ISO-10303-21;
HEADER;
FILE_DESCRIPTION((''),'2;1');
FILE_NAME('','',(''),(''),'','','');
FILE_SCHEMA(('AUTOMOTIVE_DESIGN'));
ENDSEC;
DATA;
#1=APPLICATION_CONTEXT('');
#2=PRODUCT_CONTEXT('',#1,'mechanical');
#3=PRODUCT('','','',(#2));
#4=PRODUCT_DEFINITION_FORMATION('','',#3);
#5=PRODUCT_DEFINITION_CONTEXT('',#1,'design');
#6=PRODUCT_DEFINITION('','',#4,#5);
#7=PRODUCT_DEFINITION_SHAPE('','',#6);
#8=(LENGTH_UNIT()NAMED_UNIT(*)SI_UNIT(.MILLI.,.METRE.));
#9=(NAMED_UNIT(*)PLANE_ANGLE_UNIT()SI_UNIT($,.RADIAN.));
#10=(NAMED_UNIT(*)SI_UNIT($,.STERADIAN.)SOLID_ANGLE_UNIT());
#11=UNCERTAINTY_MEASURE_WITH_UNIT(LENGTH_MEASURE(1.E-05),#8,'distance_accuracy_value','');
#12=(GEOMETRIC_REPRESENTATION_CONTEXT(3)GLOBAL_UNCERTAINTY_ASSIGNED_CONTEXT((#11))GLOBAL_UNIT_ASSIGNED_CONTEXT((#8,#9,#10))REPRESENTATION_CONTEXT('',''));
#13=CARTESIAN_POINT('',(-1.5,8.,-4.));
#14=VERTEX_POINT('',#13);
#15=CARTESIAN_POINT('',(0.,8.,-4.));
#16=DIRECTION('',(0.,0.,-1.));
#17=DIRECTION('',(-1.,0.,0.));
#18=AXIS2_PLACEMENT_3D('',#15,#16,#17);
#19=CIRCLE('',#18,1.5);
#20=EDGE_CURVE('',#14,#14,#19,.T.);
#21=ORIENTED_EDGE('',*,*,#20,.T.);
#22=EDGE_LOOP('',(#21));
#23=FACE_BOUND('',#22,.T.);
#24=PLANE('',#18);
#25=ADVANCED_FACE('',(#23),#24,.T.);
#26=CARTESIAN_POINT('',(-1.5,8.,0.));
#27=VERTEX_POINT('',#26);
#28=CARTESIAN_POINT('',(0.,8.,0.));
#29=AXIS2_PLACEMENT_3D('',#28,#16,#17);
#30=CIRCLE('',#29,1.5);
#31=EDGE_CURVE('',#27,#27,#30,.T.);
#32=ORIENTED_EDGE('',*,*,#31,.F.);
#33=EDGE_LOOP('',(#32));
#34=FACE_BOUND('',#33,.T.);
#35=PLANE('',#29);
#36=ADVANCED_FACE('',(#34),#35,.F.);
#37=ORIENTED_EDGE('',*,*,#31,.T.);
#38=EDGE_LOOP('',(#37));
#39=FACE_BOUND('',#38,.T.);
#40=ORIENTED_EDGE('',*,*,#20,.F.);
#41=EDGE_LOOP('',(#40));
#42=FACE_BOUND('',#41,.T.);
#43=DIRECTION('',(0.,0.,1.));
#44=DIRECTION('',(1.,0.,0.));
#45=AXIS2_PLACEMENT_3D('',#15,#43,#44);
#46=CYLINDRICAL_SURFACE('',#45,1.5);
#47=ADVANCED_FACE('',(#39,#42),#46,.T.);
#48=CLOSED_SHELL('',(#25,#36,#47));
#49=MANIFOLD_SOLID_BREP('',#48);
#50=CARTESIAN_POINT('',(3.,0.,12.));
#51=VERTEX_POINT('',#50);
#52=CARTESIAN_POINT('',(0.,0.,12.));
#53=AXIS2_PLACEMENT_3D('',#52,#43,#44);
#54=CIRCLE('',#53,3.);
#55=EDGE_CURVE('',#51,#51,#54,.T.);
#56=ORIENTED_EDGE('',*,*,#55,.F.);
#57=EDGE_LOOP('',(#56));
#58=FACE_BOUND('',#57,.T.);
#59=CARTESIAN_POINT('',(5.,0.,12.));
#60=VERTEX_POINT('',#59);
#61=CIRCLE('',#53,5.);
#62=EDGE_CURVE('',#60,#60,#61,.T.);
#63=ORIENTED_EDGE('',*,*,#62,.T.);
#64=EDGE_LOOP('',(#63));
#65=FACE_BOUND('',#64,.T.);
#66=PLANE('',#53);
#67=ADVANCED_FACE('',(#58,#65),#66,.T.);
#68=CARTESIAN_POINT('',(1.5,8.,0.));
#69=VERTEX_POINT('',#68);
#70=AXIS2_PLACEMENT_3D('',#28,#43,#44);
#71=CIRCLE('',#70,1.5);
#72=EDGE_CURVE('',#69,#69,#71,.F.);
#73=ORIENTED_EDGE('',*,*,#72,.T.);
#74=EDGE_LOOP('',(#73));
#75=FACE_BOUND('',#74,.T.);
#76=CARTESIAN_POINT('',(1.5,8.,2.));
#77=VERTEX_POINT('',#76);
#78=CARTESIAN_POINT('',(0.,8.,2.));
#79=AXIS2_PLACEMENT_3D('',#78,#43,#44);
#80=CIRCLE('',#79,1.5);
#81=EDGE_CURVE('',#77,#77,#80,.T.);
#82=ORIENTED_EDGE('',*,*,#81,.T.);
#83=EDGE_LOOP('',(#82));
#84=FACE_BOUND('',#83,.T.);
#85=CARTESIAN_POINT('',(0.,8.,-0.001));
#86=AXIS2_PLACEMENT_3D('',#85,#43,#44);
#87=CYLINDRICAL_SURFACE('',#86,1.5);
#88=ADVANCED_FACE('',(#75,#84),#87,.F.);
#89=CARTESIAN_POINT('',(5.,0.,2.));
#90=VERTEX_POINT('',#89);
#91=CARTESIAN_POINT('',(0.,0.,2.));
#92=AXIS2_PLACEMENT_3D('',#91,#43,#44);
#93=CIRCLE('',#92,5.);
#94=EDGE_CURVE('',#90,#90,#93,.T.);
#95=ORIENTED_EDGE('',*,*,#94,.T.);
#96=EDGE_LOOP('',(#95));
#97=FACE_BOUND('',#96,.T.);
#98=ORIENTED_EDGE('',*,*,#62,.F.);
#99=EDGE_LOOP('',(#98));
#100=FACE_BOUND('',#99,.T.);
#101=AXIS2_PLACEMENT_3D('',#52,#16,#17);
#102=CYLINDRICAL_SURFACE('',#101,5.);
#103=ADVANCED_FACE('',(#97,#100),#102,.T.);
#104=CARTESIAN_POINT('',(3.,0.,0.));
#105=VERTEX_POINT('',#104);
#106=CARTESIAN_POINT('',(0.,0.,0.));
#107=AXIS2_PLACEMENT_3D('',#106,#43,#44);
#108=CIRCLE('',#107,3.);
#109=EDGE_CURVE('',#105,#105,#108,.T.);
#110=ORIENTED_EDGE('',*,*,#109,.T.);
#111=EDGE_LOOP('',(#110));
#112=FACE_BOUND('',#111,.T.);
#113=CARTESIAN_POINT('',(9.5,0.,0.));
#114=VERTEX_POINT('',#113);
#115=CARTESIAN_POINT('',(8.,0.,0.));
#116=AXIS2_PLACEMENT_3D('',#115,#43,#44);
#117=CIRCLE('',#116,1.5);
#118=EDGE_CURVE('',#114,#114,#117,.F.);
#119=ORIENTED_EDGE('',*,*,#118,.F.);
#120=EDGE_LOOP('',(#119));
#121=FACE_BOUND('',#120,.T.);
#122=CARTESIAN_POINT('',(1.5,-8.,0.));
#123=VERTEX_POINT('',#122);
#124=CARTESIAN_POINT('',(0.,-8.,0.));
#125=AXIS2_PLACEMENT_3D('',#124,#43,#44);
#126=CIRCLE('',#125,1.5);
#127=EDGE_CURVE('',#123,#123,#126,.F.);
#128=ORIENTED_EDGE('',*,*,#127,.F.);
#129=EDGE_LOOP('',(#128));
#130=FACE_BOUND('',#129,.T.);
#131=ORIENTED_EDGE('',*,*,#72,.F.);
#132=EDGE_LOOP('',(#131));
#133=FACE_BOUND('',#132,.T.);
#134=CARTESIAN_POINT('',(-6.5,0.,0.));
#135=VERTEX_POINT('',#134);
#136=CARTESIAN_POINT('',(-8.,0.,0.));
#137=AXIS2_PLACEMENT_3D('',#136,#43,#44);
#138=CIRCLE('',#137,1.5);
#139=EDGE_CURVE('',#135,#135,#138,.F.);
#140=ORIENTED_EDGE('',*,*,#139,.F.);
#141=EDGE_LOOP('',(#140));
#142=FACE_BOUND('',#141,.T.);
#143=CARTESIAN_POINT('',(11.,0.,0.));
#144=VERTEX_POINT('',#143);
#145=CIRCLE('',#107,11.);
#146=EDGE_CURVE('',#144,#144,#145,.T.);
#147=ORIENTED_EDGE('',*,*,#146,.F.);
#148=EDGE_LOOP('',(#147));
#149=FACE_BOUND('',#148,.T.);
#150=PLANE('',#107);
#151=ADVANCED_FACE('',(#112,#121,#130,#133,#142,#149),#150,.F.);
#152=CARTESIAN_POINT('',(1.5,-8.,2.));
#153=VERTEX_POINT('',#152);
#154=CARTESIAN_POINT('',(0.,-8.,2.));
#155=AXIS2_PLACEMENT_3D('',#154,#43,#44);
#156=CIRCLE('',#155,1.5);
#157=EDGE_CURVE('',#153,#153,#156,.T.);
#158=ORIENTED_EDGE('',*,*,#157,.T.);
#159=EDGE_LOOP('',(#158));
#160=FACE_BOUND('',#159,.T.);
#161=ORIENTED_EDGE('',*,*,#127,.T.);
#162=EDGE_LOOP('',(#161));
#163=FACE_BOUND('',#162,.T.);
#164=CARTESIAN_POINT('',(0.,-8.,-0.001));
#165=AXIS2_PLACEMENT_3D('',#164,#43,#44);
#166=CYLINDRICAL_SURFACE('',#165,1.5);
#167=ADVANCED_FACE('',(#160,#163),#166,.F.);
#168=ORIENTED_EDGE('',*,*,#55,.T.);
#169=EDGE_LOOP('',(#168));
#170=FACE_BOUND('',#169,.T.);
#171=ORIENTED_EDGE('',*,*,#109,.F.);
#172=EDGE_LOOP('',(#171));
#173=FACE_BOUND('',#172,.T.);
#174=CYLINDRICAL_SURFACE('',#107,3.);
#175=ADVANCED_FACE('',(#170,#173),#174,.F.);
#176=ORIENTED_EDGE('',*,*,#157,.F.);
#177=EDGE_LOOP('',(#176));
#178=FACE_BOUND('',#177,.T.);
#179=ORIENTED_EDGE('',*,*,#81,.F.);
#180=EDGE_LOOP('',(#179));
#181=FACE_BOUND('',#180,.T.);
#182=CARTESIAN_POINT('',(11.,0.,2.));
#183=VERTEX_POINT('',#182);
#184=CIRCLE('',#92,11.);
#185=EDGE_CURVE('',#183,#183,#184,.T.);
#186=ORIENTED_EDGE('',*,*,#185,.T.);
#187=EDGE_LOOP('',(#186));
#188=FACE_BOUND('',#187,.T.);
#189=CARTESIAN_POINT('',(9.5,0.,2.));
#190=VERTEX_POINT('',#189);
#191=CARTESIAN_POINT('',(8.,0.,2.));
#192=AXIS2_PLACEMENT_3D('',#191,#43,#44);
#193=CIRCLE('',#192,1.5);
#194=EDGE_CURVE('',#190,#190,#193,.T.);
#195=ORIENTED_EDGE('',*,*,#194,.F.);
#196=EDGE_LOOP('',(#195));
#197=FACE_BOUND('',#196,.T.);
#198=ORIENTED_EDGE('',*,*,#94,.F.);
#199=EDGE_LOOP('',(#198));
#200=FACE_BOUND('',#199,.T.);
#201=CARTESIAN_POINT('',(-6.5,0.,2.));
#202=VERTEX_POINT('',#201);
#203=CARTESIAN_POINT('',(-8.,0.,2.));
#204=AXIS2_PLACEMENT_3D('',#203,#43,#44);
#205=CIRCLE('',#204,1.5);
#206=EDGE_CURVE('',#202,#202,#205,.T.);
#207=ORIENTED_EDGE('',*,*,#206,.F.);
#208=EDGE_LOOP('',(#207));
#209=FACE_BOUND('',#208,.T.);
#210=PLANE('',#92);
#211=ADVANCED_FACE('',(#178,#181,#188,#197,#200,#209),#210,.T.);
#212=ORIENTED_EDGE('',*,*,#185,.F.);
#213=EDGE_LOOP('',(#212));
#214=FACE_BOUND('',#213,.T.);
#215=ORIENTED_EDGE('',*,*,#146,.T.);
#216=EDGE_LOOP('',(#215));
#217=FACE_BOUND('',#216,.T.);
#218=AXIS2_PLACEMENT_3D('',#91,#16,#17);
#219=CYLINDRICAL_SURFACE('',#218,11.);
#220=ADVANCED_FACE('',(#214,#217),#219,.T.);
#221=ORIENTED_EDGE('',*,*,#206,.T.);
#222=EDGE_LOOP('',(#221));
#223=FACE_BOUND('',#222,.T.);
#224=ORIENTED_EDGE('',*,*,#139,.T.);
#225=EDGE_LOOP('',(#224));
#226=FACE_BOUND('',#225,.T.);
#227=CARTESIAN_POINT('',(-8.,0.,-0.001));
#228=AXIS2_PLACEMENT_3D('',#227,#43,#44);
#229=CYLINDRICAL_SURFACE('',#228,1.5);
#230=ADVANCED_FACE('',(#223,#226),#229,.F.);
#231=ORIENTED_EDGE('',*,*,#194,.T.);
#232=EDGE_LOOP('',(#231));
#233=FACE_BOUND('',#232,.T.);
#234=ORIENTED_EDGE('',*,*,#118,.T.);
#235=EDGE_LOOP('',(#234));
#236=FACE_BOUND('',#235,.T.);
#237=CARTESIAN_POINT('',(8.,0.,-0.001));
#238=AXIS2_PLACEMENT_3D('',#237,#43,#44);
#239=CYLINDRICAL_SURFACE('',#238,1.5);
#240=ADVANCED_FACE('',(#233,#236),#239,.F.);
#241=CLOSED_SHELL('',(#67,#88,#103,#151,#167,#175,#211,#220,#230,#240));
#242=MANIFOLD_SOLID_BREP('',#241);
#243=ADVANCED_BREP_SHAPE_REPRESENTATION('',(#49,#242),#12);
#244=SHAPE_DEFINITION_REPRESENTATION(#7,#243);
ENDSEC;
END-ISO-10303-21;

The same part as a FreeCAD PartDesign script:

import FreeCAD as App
import Part
import Sketcher

doc = App.newDocument("Part")
params = doc.addObject("Spreadsheet::Sheet", "Params")
for row, (alias, value) in enumerate([
    ("sketch1_diameter", "22 mm"),
    ("pad1_length", "2 mm"),
    ("sketch2_diameter", "10 mm"),
    ("pad2_length", "10 mm"),
    ("sketch3_diameter", "6 mm"),
    ("sketch4_diameter", "3 mm"),
    ("sketch5_diameter", "3 mm"),
    ("sketch6_diameter", "3 mm"),
    ("sketch7_diameter", "3 mm"),
    ("sketch8_diameter", "3 mm"),
    ("pad3_length", "4 mm"),
], start=1):
    params.set(f"A{row}", alias)
    params.set(f"B{row}", "=" + value)
    params.setAlias(f"B{row}", alias)

body = doc.addObject("PartDesign::Body", "Body")

# Sketch on XY plane
sketch1 = doc.addObject("Sketcher::SketchObject", "Sketch")
body.addObject(sketch1)
sketch1.AttachmentSupport = (doc.XY_Plane, [""])
sketch1.MapMode = "FlatFace"
sketch1.addGeometry(Part.Circle(App.Vector(0, 0, 0), App.Vector(0, 0, 1), 11), False)
sketch1.addConstraint(Sketcher.Constraint("Coincident", 0, 3, -1, 1))
sketch1.addConstraint(Sketcher.Constraint("Diameter", 0, 22.0))
sketch1.setExpression("Constraints[1]", "Params.sketch1_diameter")
pad1 = doc.addObject("PartDesign::Pad", "Pad")
body.addObject(pad1)
pad1.Profile = sketch1
pad1.setExpression("Length", "Params.pad1_length")

# Sketch on XY plane
sketch2 = doc.addObject("Sketcher::SketchObject", "Sketch001")
body.addObject(sketch2)
sketch2.AttachmentSupport = (doc.XY_Plane, [""])
sketch2.MapMode = "FlatFace"
sketch2.AttachmentOffset = App.Placement(App.Vector(0, 0, 2), App.Rotation())
sketch2.addGeometry(Part.Circle(App.Vector(0, 0, 0), App.Vector(0, 0, 1), 5), False)
sketch2.addConstraint(Sketcher.Constraint("Coincident", 0, 3, -1, 1))
sketch2.addConstraint(Sketcher.Constraint("Diameter", 0, 10.0))
sketch2.setExpression("Constraints[1]", "Params.sketch2_diameter")
pad2 = doc.addObject("PartDesign::Pad", "Pad001")
body.addObject(pad2)
pad2.Profile = sketch2
pad2.setExpression("Length", "Params.pad2_length")

# Sketch on XY plane
sketch3 = doc.addObject("Sketcher::SketchObject", "Sketch002")
body.addObject(sketch3)
sketch3.AttachmentSupport = (doc.XY_Plane, [""])
sketch3.MapMode = "FlatFace"
sketch3.AttachmentOffset = App.Placement(App.Vector(0, 0, 12), App.Rotation())
sketch3.addGeometry(Part.Circle(App.Vector(0, 0, 0), App.Vector(0, 0, 1), 3), False)
sketch3.addConstraint(Sketcher.Constraint("Coincident", 0, 3, -1, 1))
sketch3.addConstraint(Sketcher.Constraint("Diameter", 0, 6.0))
sketch3.setExpression("Constraints[1]", "Params.sketch3_diameter")
pocket1 = doc.addObject("PartDesign::Pocket", "Pocket")
body.addObject(pocket1)
pocket1.Profile = sketch3
pocket1.Type = "ThroughAll"

# Sketch on XY plane
sketch4 = doc.addObject("Sketcher::SketchObject", "Sketch003")
body.addObject(sketch4)
sketch4.AttachmentSupport = (doc.XY_Plane, [""])
sketch4.MapMode = "FlatFace"
sketch4.AttachmentOffset = App.Placement(App.Vector(0, 0, 2), App.Rotation())
sketch4.addGeometry(Part.Circle(App.Vector(-8, 0, 0), App.Vector(0, 0, 1), 1.5), False)
sketch4.addConstraint(Sketcher.Constraint("PointOnObject", 0, 3, -1))
sketch4.addConstraint(Sketcher.Constraint("Diameter", 0, 3.0))
sketch4.addConstraint(Sketcher.Constraint("DistanceX", 0, 3, -1, 1, 8.0))
sketch4.setExpression("Constraints[1]", "Params.sketch4_diameter")
pocket2 = doc.addObject("PartDesign::Pocket", "Pocket001")
body.addObject(pocket2)
pocket2.Profile = sketch4
pocket2.Type = "UpToFirst"

# Sketch on XY plane
sketch5 = doc.addObject("Sketcher::SketchObject", "Sketch004")
body.addObject(sketch5)
sketch5.AttachmentSupport = (doc.XY_Plane, [""])
sketch5.MapMode = "FlatFace"
sketch5.AttachmentOffset = App.Placement(App.Vector(0, 0, 2), App.Rotation())
sketch5.addGeometry(Part.Circle(App.Vector(0, 8, 0), App.Vector(0, 0, 1), 1.5), False)
sketch5.addConstraint(Sketcher.Constraint("PointOnObject", 0, 3, -2))
sketch5.addConstraint(Sketcher.Constraint("Diameter", 0, 3.0))
sketch5.addConstraint(Sketcher.Constraint("DistanceY", -1, 1, 0, 3, 8.0))
sketch5.setExpression("Constraints[1]", "Params.sketch5_diameter")
pocket3 = doc.addObject("PartDesign::Pocket", "Pocket002")
body.addObject(pocket3)
pocket3.Profile = sketch5
pocket3.Type = "UpToFirst"

# Sketch on XY plane
sketch6 = doc.addObject("Sketcher::SketchObject", "Sketch005")
body.addObject(sketch6)
sketch6.AttachmentSupport = (doc.XY_Plane, [""])
sketch6.MapMode = "FlatFace"
sketch6.AttachmentOffset = App.Placement(App.Vector(0, 0, 2), App.Rotation())
sketch6.addGeometry(Part.Circle(App.Vector(8, 0, 0), App.Vector(0, 0, 1), 1.5), False)
sketch6.addConstraint(Sketcher.Constraint("PointOnObject", 0, 3, -1))
sketch6.addConstraint(Sketcher.Constraint("Diameter", 0, 3.0))
sketch6.addConstraint(Sketcher.Constraint("DistanceX", -1, 1, 0, 3, 8.0))
sketch6.setExpression("Constraints[1]", "Params.sketch6_diameter")
pocket4 = doc.addObject("PartDesign::Pocket", "Pocket003")
body.addObject(pocket4)
pocket4.Profile = sketch6
pocket4.Type = "UpToFirst"

# Sketch on XY plane
sketch7 = doc.addObject("Sketcher::SketchObject", "Sketch006")
body.addObject(sketch7)
sketch7.AttachmentSupport = (doc.XY_Plane, [""])
sketch7.MapMode = "FlatFace"
sketch7.AttachmentOffset = App.Placement(App.Vector(0, 0, 2), App.Rotation())
sketch7.addGeometry(Part.Circle(App.Vector(0, -8, 0), App.Vector(0, 0, 1), 1.5), False)
sketch7.addConstraint(Sketcher.Constraint("PointOnObject", 0, 3, -2))
sketch7.addConstraint(Sketcher.Constraint("Diameter", 0, 3.0))
sketch7.addConstraint(Sketcher.Constraint("DistanceY", 0, 3, -1, 1, 8.0))
sketch7.setExpression("Constraints[1]", "Params.sketch7_diameter")
pocket5 = doc.addObject("PartDesign::Pocket", "Pocket004")
body.addObject(pocket5)
pocket5.Profile = sketch7
pocket5.Type = "UpToFirst"
body2 = doc.addObject("PartDesign::Body", "Body001")

# Sketch on XY plane
sketch8 = doc.addObject("Sketcher::SketchObject", "Sketch007")
body2.addObject(sketch8)
sketch8.AttachmentSupport = (doc.getObject("XY_Plane001"), [""])
sketch8.MapMode = "FlatFace"
sketch8.addGeometry(Part.Circle(App.Vector(0, 8, 0), App.Vector(0, 0, 1), 1.5), False)
sketch8.addConstraint(Sketcher.Constraint("PointOnObject", 0, 3, -2))
sketch8.addConstraint(Sketcher.Constraint("Diameter", 0, 3.0))
sketch8.addConstraint(Sketcher.Constraint("DistanceY", -1, 1, 0, 3, 8.0))
sketch8.setExpression("Constraints[1]", "Params.sketch8_diameter")
pad3 = doc.addObject("PartDesign::Pad", "Pad002")
body2.addObject(pad3)
pad3.Profile = sketch8
pad3.setExpression("Length", "Params.pad3_length")
pad3.Reversed = True

doc.recompute()
